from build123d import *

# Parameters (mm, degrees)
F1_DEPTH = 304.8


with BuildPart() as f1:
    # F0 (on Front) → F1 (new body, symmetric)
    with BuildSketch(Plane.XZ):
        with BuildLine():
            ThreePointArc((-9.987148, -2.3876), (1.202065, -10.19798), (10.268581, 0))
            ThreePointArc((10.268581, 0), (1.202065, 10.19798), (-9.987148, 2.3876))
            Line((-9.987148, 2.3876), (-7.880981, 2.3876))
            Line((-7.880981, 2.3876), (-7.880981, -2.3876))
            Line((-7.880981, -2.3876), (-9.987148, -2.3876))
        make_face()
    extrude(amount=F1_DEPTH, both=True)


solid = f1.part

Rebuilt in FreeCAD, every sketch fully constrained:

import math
import FreeCAD as App
import Part
import Sketcher
Q = App.Units.Quantity

doc = App.newDocument("Part")
body = doc.addObject("PartDesign::Body", "Body")

sketch1 = body.newObject("Sketcher::SketchObject", "Sketch")
sketch1.AttachmentSupport = (doc.getObject("XZ_Plane"), [""])
sketch1.MapMode = "FlatFace"
sketch1.addGeometry(Part.ArcOfCircle(Part.Circle(App.Vector(0, 0, 0), App.Vector(0, 0, 1), 10.3), math.radians(-167), math.radians(0)), False)
sketch1.addGeometry(Part.ArcOfCircle(Part.Circle(App.Vector(0, 0, 0), App.Vector(0, 0, 1), 10.3), math.radians(0), math.radians(167)), False)
sketch1.addGeometry(Part.LineSegment(App.Vector(-10, 2.4, 0), App.Vector(-7.9, 2.4, 0)), False)
sketch1.addGeometry(Part.LineSegment(App.Vector(-7.9, 2.4, 0), App.Vector(-7.9, -2.4, 0)), False)
sketch1.addGeometry(Part.LineSegment(App.Vector(-7.9, -2.4, 0), App.Vector(-10, -2.4, 0)), False)
sketch1.addConstraint(Sketcher.Constraint("Tangent", 0, 2, 1, 1))
sketch1.addConstraint(Sketcher.Constraint("Coincident", 1, 2, 2, 1))
sketch1.addConstraint(Sketcher.Constraint("Coincident", 2, 2, 3, 1))
sketch1.addConstraint(Sketcher.Constraint("Coincident", 3, 2, 4, 1))
sketch1.addConstraint(Sketcher.Constraint("Coincident", 4, 2, 0, 1))
sketch1.addConstraint(Sketcher.Constraint("Horizontal", 2))
sketch1.addConstraint(Sketcher.Constraint("Vertical", 3))
sketch1.addConstraint(Sketcher.Constraint("Horizontal", 4))
sketch1.addConstraint(Sketcher.Constraint("Coincident", 0, 3, -1, 1))
sketch1.addConstraint(Sketcher.Constraint("Equal", 0, 1))
sketch1.addConstraint(Sketcher.Constraint("PointOnObject", 0, 2, -1))
sketch1.addConstraint(Sketcher.Constraint("Vertical", 1, 2, 4, 2))
sketch1.addConstraint(Sketcher.Constraint("DistanceY", 3, 2, 3, 1, Q("0.188 in")))
sketch1.addConstraint(Sketcher.Constraint("Radius", 0, 10.268581))
sketch1.addConstraint(Sketcher.Constraint("DistanceX", 2, 1, 2, 2, 2.106167))
pad1 = body.newObject("PartDesign::Pad", "Pad")
pad1.Profile = sketch1
pad1.Length = Q("24 in")
pad1.Midplane = True

doc.recompute()
